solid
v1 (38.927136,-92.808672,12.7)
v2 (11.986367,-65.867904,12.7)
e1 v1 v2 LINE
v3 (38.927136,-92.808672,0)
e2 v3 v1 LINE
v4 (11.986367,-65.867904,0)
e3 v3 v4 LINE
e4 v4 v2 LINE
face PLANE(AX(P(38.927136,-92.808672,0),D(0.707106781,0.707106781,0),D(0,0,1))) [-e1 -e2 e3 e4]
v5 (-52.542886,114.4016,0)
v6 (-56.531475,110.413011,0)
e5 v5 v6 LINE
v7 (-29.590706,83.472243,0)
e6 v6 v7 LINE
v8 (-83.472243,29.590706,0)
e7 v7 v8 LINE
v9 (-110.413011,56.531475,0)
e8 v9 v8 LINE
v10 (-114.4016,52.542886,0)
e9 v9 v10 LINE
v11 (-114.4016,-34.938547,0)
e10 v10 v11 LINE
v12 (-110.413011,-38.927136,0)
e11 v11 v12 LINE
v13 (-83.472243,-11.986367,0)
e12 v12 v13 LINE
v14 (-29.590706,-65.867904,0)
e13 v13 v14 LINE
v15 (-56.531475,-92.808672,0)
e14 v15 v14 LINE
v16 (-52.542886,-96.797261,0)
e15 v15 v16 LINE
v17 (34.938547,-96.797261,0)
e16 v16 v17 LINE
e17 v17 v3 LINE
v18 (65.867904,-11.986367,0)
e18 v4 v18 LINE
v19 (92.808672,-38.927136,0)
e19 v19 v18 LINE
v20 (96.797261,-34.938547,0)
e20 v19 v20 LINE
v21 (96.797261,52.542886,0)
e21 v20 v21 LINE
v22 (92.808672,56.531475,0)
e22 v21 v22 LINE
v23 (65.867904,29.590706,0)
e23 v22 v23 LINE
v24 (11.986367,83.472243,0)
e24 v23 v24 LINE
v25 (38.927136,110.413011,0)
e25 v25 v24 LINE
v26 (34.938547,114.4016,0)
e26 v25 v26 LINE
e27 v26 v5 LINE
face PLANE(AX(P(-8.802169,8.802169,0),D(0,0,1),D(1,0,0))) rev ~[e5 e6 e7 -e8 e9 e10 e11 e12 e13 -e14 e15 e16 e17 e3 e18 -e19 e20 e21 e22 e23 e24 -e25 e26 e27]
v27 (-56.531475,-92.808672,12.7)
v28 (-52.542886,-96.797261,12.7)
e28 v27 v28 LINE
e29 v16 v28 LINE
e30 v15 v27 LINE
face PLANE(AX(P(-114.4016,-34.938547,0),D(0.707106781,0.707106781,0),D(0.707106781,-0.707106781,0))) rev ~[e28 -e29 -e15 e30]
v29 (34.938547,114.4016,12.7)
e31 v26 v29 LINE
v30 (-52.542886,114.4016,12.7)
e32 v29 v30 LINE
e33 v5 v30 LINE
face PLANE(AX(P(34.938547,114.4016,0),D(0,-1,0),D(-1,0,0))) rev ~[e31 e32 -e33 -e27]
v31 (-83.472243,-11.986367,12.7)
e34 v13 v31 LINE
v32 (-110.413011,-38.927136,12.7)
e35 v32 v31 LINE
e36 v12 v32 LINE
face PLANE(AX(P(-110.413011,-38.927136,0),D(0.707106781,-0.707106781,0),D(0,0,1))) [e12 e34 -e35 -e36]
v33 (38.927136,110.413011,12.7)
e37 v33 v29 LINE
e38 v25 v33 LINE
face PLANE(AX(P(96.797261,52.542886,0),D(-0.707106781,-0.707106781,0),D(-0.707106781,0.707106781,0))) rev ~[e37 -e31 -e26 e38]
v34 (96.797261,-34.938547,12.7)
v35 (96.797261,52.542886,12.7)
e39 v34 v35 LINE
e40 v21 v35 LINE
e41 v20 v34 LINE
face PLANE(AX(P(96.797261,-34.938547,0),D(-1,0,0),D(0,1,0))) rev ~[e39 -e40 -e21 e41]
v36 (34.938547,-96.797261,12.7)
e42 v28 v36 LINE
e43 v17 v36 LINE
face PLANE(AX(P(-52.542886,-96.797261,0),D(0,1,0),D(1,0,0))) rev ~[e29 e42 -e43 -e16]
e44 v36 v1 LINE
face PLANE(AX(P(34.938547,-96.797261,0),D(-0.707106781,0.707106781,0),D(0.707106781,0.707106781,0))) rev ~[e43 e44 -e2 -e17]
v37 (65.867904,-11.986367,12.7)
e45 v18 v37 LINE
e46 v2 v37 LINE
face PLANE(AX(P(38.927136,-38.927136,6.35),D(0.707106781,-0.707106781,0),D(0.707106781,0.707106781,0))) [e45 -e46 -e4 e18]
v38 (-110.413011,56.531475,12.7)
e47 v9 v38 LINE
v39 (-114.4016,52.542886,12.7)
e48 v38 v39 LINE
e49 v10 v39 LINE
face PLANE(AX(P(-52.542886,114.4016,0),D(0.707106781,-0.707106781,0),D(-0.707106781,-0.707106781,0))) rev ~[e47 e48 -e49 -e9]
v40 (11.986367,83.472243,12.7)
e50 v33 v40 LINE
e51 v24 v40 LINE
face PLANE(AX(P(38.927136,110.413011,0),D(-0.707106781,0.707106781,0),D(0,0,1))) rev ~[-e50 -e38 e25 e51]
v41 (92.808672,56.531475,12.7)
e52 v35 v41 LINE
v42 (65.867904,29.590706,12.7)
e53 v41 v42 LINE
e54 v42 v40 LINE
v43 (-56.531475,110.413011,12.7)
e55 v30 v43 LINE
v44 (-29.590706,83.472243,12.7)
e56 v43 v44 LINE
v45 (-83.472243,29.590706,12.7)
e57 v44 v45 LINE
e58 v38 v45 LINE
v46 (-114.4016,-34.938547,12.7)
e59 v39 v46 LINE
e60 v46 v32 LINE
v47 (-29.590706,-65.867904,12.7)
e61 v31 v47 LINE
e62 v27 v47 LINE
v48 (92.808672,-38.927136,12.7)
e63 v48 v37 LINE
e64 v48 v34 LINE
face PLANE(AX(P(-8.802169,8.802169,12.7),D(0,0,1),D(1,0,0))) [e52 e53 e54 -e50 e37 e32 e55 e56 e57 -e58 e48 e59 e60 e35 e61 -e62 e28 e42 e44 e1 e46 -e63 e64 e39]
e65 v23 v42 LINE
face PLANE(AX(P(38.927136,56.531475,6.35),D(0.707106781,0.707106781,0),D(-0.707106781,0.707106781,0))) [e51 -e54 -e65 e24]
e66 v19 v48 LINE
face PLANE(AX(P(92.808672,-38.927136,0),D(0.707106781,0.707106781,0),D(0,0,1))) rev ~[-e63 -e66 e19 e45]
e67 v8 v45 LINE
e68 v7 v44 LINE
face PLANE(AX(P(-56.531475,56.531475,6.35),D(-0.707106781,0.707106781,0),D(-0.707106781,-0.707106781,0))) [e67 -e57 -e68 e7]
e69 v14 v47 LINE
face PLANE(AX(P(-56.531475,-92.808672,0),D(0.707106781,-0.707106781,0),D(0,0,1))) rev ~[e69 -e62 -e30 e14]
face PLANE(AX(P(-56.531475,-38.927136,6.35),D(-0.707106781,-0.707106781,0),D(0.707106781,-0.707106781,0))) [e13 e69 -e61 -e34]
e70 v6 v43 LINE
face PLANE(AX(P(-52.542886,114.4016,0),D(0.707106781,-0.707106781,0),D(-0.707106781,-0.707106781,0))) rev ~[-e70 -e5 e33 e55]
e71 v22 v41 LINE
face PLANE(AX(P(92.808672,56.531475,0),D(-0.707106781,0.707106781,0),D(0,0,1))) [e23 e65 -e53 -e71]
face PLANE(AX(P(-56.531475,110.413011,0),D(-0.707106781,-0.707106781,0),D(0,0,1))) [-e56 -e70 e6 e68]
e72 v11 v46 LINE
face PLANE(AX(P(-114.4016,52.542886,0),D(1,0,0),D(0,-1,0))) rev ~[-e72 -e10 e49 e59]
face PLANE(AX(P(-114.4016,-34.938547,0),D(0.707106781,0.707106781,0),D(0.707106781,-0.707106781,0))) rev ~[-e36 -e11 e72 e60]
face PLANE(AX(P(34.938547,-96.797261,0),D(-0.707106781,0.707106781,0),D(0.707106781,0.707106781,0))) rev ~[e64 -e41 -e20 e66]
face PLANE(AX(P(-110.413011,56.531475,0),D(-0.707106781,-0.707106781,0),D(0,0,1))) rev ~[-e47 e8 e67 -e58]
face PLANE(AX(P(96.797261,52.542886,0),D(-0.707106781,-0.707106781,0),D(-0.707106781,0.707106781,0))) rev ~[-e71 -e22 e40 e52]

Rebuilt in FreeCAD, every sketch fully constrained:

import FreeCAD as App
import Part
import Sketcher
from FreeCAD import Vector
Q = App.Units.Quantity


def add_polygon(sketch, points):
    """Adds a closed chain of lines whose ends are joined by coincident constraints."""
    first, n = sketch.GeometryCount, len(points)
    for a, b in zip(points, points[1:] + points[:1]):
        sketch.addGeometry(Part.LineSegment(App.Vector(*a, 0), App.Vector(*b, 0)), False)
    for i in range(n):
        sketch.addConstraint(Sketcher.Constraint("Coincident", first + i, 2, first + (i + 1) % n, 1))

doc = App.newDocument("Part")
body = doc.addObject("PartDesign::Body", "Body")

sketch1 = body.newObject("Sketcher::SketchObject", "Sketch")
sketch1.AttachmentSupport = (doc.getObject("XY_Plane"), [""])
sketch1.MapMode = "FlatFace"
add_polygon(sketch1, [(35, 114), (-53, 114), (-114, 53), (-114, -35), (-53, -97), (35, -97), (97, -35), (97, 53)])
sketch1.addConstraint(Sketcher.Constraint("Horizontal", 0))
sketch1.addConstraint(Sketcher.Constraint("Vertical", 2))
sketch1.addConstraint(Sketcher.Constraint("Horizontal", 4))
sketch1.addConstraint(Sketcher.Constraint("Vertical", 6))
sketch1.addConstraint(Sketcher.Constraint("Perpendicular", 1, 3))
sketch1.addConstraint(Sketcher.Constraint("Perpendicular", 3, 5))
sketch1.addConstraint(Sketcher.Constraint("Perpendicular", 5, 7))
sketch1.addConstraint(Sketcher.Constraint("Horizontal", 2, 2, 5, 2))
sketch1.addConstraint(Sketcher.Constraint("Horizontal", 1, 2, 6, 2))
sketch1.addConstraint(Sketcher.Constraint("Vertical", 0, 2, 3, 2))
sketch1.addConstraint(Sketcher.Constraint("Vertical", 4, 2, 7, 2))
sketch1.addConstraint(Sketcher.Constraint("Equal", 4, 2))
sketch1.addConstraint(Sketcher.Constraint("DistanceY", -1, 1, 0, 2, Q("4.504 in")))
sketch1.addConstraint(Sketcher.Constraint("DistanceX", 1, 2, -1, 1, Q("4.504 in")))
sketch1.addConstraint(Sketcher.Constraint("DistanceX", 0, 2, 0, 1, Q("87.481433 mm")))
sketch1.addConstraint(Sketcher.Constraint("DistanceY", 3, 2, -1, 1, Q("96.797261 mm")))
pad1 = body.newObject("PartDesign::Pad", "Pad")
pad1.Profile = sketch1
pad1.Length = Q("0.5 in")

sketch2 = body.newObject("Sketcher::SketchObject", "Sketch001")
sketch2.Placement = App.Placement(Vector(65.867904, -65.867904, 0), App.Rotation(Vector(0.707106781, 0.707106781, 0), Vector(0, 0, 0.999999999), Vector(0.707106781, -0.707106781, 0), "ZXY"))
add_polygon(sketch2, [(-38, 13), (-38, 0), (38, 0), (38, 13)])
sketch2.addConstraint(Sketcher.Constraint("Vertical", 0))
sketch2.addConstraint(Sketcher.Constraint("Horizontal", 1))
sketch2.addConstraint(Sketcher.Constraint("Vertical", 2))
sketch2.addConstraint(Sketcher.Constraint("Horizontal", 3))
sketch2.addConstraint(Sketcher.Constraint("Symmetric", 0, 2, 1, 2, -1, 1))
sketch2.addConstraint(Sketcher.Constraint("DistanceX", 1, 1, 1, 2, Q("3 in")))
sketch2.addConstraint(Sketcher.Constraint("DistanceY", 0, 2, 0, 1, Q("0.5 in")))
pocket1 = body.newObject("PartDesign::Pocket", "Pocket")
pocket1.Profile = sketch2
pocket1.Length = Q("1.5 in")

sketch3 = body.newObject("Sketcher::SketchObject", "Sketch002")
sketch3.Placement = App.Placement(Vector(-74.670073, -74.670073, 0), App.Rotation(Vector(0.707106781, -0.707106781, 0), Vector(0, 0, 0.999999999), Vector(-0.707106781, -0.707106781, 0), "ZXY"))
add_polygon(sketch3, [(-51, 13), (-51, 0), (26, 0), (26, 13)])
sketch3.addConstraint(Sketcher.Constraint("Vertical", 0))
sketch3.addConstraint(Sketcher.Constraint("Horizontal", 1))
sketch3.addConstraint(Sketcher.Constraint("Vertical", 2))
sketch3.addConstraint(Sketcher.Constraint("Horizontal", 3))
sketch3.addConstraint(Sketcher.Constraint("PointOnObject", 0, 2, -1))
sketch3.addConstraint(Sketcher.Constraint("DistanceX", 1, 1, 1, 2, Q("3 in")))
sketch3.addConstraint(Sketcher.Constraint("DistanceY", 0, 2, 0, 1, Q("0.5 in")))
sketch3.addConstraint(Sketcher.Constraint("DistanceX", 0, 2, -1, 1, Q("50.548147 mm")))
pocket2 = body.newObject("PartDesign::Pocket", "Pocket001")
pocket2.Profile = sketch3
pocket2.Length = Q("1.5 in")

sketch4 = body.newObject("Sketcher::SketchObject", "Sketch003")
sketch4.Placement = App.Placement(Vector(-83.472243, 83.472243, 0), App.Rotation(Vector(-0.707106781, -0.707106781, 0), Vector(0, 0, 0.999999999), Vector(-0.707106781, 0.707106781, 0), "ZXY"))
add_polygon(sketch4, [(-38, 13), (-38, 0), (38, 0), (38, 13)])
sketch4.addConstraint(Sketcher.Constraint("Vertical", 0))
sketch4.addConstraint(Sketcher.Constraint("Horizontal", 1))
sketch4.addConstraint(Sketcher.Constraint("Vertical", 2))
sketch4.addConstraint(Sketcher.Constraint("Horizontal", 3))
sketch4.addConstraint(Sketcher.Constraint("Symmetric", 0, 2, 1, 2, -1, 1))
sketch4.addConstraint(Sketcher.Constraint("DistanceX", 1, 1, 1, 2, Q("3 in")))
sketch4.addConstraint(Sketcher.Constraint("DistanceY", 0, 2, 0, 1, Q("0.5 in")))
pocket3 = body.newObject("PartDesign::Pocket", "Pocket002")
pocket3.Profile = sketch4
pocket3.Length = Q("1.5 in")

sketch5 = body.newObject("Sketcher::SketchObject", "Sketch004")
sketch5.Placement = App.Placement(Vector(74.670073, 74.670073, 0), App.Rotation(Vector(-0.707106781, 0.707106781, 0), Vector(0, 0, 0.999999999), Vector(0.707106781, 0.707106781, 0), "ZXY"))
add_polygon(sketch5, [(-26, 13), (-26, 0), (51, 0), (51, 13)])
sketch5.addConstraint(Sketcher.Constraint("Vertical", 0))
sketch5.addConstraint(Sketcher.Constraint("Horizontal", 1))
sketch5.addConstraint(Sketcher.Constraint("Vertical", 2))
sketch5.addConstraint(Sketcher.Constraint("Horizontal", 3))
sketch5.addConstraint(Sketcher.Constraint("PointOnObject", 0, 2, -1))
sketch5.addConstraint(Sketcher.Constraint("DistanceX", 1, 1, 1, 2, Q("3 in")))
sketch5.addConstraint(Sketcher.Constraint("DistanceY", 0, 2, 0, 1, Q("0.5 in")))
sketch5.addConstraint(Sketcher.Constraint("DistanceX", 0, 2, -1, 1, Q("25.651853 mm")))
pocket4 = body.newObject("PartDesign::Pocket", "Pocket003")
pocket4.Profile = sketch5
pocket4.Length = Q("1.5 in")

doc.recompute()
